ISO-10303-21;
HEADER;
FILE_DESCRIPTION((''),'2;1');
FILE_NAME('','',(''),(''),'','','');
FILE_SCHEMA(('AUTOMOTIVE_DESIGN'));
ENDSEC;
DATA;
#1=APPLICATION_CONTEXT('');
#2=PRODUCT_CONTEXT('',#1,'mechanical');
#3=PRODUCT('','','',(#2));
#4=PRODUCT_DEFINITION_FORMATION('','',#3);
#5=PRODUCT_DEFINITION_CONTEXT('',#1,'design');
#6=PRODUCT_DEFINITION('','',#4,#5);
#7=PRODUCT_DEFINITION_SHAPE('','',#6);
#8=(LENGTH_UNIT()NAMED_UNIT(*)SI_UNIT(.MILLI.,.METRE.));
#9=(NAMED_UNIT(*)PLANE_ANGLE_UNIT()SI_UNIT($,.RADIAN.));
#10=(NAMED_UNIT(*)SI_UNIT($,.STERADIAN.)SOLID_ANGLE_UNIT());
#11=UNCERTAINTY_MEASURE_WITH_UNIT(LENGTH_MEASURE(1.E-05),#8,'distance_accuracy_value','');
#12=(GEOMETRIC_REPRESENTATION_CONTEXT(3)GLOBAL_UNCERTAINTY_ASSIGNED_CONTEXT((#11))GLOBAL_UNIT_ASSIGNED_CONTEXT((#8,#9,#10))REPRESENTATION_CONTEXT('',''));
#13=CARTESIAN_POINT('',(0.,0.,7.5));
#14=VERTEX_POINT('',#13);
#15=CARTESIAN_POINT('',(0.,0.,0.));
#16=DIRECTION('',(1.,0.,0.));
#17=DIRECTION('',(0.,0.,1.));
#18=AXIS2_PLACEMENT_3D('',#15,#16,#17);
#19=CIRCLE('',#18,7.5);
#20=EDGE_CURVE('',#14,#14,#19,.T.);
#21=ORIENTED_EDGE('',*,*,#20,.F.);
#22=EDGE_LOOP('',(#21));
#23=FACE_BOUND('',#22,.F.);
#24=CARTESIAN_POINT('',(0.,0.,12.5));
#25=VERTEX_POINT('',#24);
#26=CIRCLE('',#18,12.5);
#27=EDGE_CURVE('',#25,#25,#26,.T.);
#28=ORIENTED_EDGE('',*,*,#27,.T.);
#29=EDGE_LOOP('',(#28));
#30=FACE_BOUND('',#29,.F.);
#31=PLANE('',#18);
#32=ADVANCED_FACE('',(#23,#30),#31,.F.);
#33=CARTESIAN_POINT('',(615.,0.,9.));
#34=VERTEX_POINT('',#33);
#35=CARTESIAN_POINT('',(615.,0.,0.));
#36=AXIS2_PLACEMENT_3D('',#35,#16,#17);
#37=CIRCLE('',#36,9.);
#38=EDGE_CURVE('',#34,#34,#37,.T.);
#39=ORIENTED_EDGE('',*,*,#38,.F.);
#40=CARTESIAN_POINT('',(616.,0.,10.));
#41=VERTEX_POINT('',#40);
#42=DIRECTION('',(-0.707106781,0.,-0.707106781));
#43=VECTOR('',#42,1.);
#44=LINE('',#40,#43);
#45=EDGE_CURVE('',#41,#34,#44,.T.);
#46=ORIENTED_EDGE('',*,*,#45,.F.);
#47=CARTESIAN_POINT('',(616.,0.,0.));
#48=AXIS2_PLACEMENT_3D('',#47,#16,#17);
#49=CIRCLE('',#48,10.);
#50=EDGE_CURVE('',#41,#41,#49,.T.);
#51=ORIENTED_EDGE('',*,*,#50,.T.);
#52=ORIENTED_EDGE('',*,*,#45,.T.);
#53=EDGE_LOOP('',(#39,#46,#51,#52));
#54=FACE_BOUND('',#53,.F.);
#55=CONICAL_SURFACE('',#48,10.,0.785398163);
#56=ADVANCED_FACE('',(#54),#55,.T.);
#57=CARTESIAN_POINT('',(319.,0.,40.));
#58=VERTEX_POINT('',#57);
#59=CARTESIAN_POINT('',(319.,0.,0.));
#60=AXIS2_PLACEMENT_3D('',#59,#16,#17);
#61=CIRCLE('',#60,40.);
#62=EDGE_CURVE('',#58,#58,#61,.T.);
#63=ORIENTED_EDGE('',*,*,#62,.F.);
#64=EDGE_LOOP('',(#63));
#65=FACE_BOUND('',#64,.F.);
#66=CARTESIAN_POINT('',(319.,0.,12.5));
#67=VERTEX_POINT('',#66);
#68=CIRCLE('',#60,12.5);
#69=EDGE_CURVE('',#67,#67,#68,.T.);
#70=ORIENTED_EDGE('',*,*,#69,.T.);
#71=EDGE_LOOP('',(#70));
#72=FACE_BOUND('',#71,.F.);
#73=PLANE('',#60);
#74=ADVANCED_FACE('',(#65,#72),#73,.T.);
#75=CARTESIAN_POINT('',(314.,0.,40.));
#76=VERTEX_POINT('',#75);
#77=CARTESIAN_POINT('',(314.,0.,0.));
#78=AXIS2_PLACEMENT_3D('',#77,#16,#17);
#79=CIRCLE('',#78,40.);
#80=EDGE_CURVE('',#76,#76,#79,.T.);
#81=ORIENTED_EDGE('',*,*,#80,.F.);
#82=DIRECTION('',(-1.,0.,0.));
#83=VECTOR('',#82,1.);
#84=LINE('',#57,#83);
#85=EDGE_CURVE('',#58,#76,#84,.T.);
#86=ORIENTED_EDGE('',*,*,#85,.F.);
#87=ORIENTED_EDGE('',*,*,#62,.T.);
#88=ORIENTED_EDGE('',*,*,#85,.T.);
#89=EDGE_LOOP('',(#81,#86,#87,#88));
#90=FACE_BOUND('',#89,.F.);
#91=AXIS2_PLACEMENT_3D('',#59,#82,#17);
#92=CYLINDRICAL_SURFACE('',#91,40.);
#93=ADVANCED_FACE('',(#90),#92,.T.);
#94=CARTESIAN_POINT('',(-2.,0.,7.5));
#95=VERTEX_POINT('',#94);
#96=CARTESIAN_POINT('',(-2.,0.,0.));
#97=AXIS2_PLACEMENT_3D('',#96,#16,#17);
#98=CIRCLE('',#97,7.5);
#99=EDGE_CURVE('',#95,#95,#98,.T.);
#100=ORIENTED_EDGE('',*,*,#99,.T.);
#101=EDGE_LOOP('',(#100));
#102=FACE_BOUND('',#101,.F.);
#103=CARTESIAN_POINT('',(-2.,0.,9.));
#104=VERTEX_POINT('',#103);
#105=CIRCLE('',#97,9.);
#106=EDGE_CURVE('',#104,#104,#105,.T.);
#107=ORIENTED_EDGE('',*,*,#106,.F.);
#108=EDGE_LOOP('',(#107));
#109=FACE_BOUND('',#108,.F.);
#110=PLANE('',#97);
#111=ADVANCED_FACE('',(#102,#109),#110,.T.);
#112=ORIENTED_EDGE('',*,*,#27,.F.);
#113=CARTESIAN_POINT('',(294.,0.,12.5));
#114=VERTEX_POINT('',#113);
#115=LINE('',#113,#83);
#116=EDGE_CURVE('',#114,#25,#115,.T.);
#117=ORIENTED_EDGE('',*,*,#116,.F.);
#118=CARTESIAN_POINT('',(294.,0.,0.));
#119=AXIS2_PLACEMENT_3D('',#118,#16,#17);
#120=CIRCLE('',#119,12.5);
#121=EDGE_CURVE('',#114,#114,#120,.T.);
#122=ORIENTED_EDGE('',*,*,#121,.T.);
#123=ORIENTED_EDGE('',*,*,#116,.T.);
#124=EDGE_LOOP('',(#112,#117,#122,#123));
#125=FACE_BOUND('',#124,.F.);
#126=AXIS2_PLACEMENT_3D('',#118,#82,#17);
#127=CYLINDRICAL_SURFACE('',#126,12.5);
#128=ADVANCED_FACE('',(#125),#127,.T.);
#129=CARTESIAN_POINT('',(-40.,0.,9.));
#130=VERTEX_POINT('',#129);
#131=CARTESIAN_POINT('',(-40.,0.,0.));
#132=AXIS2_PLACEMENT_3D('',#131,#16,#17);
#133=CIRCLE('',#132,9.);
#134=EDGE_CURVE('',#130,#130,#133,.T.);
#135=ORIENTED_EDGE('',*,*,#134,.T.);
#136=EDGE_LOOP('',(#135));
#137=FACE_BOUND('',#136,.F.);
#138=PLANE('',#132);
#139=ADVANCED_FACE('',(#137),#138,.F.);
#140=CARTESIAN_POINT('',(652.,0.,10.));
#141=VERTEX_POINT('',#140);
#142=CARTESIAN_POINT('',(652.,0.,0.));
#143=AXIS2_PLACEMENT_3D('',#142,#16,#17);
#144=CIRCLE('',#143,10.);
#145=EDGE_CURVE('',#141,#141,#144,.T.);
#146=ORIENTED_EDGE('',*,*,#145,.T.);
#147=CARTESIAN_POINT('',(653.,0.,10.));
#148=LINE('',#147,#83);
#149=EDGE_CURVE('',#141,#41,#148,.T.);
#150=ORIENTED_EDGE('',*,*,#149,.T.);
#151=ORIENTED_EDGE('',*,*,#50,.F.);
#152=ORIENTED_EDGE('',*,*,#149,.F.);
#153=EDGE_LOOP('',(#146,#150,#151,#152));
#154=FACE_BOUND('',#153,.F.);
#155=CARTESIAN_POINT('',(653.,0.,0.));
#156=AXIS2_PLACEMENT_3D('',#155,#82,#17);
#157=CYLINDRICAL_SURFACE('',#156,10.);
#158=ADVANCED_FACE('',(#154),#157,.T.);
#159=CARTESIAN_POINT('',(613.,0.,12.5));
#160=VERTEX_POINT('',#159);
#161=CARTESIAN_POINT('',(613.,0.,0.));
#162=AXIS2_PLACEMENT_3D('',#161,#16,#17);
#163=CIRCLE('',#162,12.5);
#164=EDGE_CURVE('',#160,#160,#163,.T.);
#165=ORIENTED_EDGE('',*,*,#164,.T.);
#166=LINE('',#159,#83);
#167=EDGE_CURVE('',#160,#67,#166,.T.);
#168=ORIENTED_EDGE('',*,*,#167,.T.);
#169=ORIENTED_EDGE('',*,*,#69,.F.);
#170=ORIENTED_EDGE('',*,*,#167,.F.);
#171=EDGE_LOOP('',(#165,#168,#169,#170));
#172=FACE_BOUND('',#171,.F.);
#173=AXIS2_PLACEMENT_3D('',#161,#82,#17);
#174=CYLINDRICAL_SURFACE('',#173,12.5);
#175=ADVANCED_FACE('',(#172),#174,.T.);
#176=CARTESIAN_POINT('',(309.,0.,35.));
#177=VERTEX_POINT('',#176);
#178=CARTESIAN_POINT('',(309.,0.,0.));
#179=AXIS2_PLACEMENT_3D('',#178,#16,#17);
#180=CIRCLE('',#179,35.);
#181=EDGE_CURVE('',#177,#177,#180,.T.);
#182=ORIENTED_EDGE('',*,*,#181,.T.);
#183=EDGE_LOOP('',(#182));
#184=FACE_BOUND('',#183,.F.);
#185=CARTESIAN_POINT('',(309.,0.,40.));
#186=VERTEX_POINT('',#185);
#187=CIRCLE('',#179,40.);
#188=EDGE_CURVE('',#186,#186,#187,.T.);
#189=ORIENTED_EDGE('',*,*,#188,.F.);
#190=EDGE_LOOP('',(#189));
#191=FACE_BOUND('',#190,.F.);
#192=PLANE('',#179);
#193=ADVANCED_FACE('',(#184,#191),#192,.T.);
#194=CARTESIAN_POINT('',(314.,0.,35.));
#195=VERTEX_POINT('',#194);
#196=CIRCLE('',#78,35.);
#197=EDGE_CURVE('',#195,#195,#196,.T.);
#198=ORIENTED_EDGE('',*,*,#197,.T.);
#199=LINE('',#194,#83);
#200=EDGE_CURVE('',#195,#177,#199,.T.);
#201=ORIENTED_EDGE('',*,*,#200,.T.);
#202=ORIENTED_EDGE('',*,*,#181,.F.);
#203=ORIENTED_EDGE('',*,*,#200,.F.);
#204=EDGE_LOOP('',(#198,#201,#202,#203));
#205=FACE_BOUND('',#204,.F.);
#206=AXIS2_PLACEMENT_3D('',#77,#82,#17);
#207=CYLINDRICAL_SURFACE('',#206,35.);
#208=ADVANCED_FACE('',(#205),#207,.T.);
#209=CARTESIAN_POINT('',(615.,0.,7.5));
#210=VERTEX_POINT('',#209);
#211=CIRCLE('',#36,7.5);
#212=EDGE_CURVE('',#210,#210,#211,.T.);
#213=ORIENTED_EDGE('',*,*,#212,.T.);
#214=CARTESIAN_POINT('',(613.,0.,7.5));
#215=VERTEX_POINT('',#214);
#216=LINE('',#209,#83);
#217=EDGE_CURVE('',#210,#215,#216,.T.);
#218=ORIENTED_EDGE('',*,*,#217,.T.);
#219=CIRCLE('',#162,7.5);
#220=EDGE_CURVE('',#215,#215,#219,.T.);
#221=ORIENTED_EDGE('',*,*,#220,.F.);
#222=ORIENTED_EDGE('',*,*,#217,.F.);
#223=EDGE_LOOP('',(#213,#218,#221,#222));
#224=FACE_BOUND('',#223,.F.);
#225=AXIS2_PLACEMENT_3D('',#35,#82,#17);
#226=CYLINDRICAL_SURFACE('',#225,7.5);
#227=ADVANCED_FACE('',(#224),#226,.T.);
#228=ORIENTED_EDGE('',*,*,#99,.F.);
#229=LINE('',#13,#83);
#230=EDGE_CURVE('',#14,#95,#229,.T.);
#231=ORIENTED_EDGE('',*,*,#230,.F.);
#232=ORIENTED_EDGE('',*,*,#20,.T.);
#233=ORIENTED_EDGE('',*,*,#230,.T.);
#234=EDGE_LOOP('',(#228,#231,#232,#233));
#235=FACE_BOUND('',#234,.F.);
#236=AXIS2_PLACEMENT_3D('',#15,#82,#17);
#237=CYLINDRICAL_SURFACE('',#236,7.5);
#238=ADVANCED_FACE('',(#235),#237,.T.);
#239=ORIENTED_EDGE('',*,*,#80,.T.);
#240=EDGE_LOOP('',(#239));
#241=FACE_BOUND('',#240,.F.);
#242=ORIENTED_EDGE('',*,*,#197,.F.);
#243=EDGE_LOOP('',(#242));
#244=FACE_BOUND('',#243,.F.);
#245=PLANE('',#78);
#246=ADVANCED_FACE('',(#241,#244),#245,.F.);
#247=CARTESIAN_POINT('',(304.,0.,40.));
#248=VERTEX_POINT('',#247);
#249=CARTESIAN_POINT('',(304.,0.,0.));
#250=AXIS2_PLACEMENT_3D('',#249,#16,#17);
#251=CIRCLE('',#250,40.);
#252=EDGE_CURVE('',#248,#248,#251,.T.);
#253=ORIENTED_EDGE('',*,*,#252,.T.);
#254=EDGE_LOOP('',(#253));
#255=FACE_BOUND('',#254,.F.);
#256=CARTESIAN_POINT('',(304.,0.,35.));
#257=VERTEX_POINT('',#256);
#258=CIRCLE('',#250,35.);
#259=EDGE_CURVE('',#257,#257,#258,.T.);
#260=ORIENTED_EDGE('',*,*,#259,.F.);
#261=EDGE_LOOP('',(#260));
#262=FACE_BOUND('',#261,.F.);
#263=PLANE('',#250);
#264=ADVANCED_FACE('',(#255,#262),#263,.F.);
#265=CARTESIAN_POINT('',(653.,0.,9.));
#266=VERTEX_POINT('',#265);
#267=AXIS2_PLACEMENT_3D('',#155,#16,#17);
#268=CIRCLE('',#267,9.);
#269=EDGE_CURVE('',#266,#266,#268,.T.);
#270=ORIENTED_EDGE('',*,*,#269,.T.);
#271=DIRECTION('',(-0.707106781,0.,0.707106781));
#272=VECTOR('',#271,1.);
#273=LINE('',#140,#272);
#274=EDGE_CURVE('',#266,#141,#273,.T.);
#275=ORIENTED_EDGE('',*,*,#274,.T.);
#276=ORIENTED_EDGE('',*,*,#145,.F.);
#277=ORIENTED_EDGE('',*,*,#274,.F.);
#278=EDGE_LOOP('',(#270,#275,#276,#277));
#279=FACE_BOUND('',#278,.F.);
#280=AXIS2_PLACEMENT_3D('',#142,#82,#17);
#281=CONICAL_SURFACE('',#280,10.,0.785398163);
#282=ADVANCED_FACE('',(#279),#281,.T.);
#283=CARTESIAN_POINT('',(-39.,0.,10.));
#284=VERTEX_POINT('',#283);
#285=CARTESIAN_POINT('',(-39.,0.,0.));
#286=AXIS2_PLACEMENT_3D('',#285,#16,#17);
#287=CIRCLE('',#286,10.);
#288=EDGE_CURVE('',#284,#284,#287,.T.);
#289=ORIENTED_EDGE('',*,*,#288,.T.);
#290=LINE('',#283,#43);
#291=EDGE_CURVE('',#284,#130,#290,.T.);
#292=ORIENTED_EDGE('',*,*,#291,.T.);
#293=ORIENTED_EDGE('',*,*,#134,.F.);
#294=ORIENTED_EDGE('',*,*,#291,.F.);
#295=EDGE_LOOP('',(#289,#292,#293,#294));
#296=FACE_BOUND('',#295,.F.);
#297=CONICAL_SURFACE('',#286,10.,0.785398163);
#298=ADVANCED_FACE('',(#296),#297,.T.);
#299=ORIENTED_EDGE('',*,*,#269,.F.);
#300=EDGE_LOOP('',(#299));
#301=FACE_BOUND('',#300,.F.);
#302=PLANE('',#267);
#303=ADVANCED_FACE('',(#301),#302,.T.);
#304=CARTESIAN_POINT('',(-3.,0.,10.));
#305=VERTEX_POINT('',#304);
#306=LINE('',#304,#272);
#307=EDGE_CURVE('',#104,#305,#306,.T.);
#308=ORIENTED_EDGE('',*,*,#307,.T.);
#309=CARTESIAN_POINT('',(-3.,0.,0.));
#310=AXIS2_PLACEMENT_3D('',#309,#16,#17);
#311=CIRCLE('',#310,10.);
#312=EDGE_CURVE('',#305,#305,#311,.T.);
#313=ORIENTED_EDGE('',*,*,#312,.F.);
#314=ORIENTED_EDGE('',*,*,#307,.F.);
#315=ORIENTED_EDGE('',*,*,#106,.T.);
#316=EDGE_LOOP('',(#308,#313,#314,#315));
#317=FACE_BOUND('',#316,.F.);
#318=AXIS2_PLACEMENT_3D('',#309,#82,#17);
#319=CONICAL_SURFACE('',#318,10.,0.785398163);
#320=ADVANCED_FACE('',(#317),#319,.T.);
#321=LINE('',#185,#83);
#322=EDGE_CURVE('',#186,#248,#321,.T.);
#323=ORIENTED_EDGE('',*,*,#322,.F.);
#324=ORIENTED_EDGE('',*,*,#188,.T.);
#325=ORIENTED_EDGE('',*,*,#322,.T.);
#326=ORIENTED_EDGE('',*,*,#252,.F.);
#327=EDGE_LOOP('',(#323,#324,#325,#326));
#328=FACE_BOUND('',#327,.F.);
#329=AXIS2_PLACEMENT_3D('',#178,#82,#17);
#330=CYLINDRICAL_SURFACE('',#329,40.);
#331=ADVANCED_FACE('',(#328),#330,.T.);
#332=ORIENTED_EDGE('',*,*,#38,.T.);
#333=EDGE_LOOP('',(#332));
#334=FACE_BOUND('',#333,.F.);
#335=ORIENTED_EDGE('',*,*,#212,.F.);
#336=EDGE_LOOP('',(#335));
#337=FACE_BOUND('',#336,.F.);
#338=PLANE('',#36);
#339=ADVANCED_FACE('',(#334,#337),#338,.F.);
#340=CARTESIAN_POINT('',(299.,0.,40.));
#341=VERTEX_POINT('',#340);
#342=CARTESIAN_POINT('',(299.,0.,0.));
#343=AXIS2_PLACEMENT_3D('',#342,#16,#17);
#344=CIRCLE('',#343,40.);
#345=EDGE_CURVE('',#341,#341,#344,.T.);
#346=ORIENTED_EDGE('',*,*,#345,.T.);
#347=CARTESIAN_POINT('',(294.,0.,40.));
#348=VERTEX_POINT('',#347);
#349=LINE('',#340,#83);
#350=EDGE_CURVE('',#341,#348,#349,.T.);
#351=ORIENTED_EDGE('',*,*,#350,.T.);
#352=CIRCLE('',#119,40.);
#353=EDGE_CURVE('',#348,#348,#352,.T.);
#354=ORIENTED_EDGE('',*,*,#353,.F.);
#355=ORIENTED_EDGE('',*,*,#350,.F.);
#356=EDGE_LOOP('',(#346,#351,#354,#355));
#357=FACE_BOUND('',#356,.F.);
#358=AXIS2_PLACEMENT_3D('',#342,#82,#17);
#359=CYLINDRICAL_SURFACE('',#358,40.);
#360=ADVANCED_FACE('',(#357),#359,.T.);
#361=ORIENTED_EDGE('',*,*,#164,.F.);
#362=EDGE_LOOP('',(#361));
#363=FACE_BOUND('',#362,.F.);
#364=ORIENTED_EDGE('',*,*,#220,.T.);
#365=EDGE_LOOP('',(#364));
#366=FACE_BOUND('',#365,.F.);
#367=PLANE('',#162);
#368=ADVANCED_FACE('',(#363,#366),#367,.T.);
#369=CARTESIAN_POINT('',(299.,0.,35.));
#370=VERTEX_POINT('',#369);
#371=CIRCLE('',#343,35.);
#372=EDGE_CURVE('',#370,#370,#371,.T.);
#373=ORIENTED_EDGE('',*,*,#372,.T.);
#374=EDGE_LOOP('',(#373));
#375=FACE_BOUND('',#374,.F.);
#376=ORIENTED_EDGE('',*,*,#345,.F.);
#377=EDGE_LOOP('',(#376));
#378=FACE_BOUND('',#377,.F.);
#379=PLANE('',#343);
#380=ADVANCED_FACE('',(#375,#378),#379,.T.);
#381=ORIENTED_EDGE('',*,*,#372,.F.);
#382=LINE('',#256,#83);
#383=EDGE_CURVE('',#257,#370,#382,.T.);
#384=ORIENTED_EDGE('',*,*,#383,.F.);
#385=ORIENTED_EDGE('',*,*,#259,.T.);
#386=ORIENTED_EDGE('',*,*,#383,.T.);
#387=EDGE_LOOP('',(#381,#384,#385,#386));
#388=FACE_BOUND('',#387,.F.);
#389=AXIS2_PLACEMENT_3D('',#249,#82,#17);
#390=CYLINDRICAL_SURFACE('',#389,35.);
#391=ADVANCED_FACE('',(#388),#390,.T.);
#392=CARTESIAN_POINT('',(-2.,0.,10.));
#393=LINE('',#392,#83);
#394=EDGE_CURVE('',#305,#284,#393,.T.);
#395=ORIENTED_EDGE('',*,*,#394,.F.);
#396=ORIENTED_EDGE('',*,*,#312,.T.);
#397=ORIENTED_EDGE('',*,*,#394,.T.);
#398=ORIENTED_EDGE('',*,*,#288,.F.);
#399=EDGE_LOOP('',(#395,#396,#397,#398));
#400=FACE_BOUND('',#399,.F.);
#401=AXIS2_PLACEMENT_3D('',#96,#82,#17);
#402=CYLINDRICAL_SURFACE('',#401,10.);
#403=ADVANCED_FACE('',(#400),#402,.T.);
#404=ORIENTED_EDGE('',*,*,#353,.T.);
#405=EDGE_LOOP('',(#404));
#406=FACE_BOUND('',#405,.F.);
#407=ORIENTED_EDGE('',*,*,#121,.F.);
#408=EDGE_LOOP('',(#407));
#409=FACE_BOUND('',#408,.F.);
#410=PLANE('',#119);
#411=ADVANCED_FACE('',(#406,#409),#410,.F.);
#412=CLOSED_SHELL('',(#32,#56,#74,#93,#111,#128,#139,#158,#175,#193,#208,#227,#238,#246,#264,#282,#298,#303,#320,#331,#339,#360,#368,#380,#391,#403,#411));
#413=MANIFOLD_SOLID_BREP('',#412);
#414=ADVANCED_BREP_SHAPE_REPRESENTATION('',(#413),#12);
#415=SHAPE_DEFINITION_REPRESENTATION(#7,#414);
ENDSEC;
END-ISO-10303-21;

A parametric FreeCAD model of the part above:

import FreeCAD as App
import Part
import Sketcher
Q = App.Units.Quantity


def edges_at(feature, points):
    """Names of the edges that pass closest to the given points."""
    edges = feature.Shape.Edges
    near = lambda p: min(range(len(edges)), key=lambda i: edges[i].distToShape(Part.Vertex(*p))[0])
    return sorted({f"Edge{near(p) + 1}" for p in points})

doc = App.newDocument("Part")
body = doc.addObject("PartDesign::Body", "Body")

sketch1 = body.newObject("Sketcher::SketchObject", "Sketch")
sketch1.AttachmentSupport = (doc.getObject("XZ_Plane"), [""])
sketch1.MapMode = "FlatFace"
sketch1.addGeometry(Part.LineSegment(App.Vector(294, 12.5, 0), App.Vector(0, 12.5, 0)), False)
sketch1.addGeometry(Part.LineSegment(App.Vector(0, 12.5, 0), App.Vector(0, 7.5, 0)), False)
sketch1.addGeometry(Part.LineSegment(App.Vector(0, 7.5, 0), App.Vector(-2, 7.5, 0)), False)
sketch1.addGeometry(Part.LineSegment(App.Vector(-2, 7.5, 0), App.Vector(-2, 10, 0)), False)
sketch1.addGeometry(Part.LineSegment(App.Vector(-2, 10, 0), App.Vector(-40, 10, 0)), False)
sketch1.addGeometry(Part.LineSegment(App.Vector(-40, 10, 0), App.Vector(-40, 0, 0)), False)
sketch1.addGeometry(Part.LineSegment(App.Vector(-40, 0, 0), App.Vector(653, 0, 0)), False)
sketch1.addGeometry(Part.LineSegment(App.Vector(653, 0, 0), App.Vector(653, 10, 0)), False)
sketch1.addGeometry(Part.LineSegment(App.Vector(653, 10, 0), App.Vector(615, 10, 0)), False)
sketch1.addGeometry(Part.LineSegment(App.Vector(615, 10, 0), App.Vector(615, 7.5, 0)), False)
sketch1.addGeometry(Part.LineSegment(App.Vector(615, 7.5, 0), App.Vector(613, 7.5, 0)), False)
sketch1.addGeometry(Part.LineSegment(App.Vector(613, 7.5, 0), App.Vector(613, 12.5, 0)), False)
sketch1.addGeometry(Part.LineSegment(App.Vector(613, 12.5, 0), App.Vector(319, 12.5, 0)), False)
sketch1.addGeometry(Part.LineSegment(App.Vector(319, 12.5, 0), App.Vector(319, 40, 0)), False)
sketch1.addGeometry(Part.LineSegment(App.Vector(319, 40, 0), App.Vector(314, 40, 0)), False)
sketch1.addGeometry(Part.LineSegment(App.Vector(314, 40, 0), App.Vector(314, 35, 0)), False)
sketch1.addGeometry(Part.LineSegment(App.Vector(314, 35, 0), App.Vector(309, 35, 0)), False)
sketch1.addGeometry(Part.LineSegment(App.Vector(309, 35, 0), App.Vector(309, 40, 0)), False)
sketch1.addGeometry(Part.LineSegment(App.Vector(309, 40, 0), App.Vector(304, 40, 0)), False)
sketch1.addGeometry(Part.LineSegment(App.Vector(304, 40, 0), App.Vector(304, 35, 0)), False)
sketch1.addGeometry(Part.LineSegment(App.Vector(304, 35, 0), App.Vector(299, 35, 0)), False)
sketch1.addGeometry(Part.LineSegment(App.Vector(299, 35, 0), App.Vector(299, 40, 0)), False)
sketch1.addGeometry(Part.LineSegment(App.Vector(299, 40, 0), App.Vector(294, 40, 0)), False)
sketch1.addGeometry(Part.LineSegment(App.Vector(294, 40, 0), App.Vector(294, 12.5, 0)), False)
sketch1.addConstraint(Sketcher.Constraint("Coincident", 0, 2, 1, 1))
sketch1.addConstraint(Sketcher.Constraint("Coincident", 1, 2, 2, 1))
sketch1.addConstraint(Sketcher.Constraint("Coincident", 2, 2, 3, 1))
sketch1.addConstraint(Sketcher.Constraint("Coincident", 3, 2, 4, 1))
sketch1.addConstraint(Sketcher.Constraint("Coincident", 4, 2, 5, 1))
sketch1.addConstraint(Sketcher.Constraint("Coincident", 5, 2, 6, 1))
sketch1.addConstraint(Sketcher.Constraint("Coincident", 6, 2, 7, 1))
sketch1.addConstraint(Sketcher.Constraint("Coincident", 7, 2, 8, 1))
sketch1.addConstraint(Sketcher.Constraint("Coincident", 8, 2, 9, 1))
sketch1.addConstraint(Sketcher.Constraint("Coincident", 9, 2, 10, 1))
sketch1.addConstraint(Sketcher.Constraint("Coincident", 10, 2, 11, 1))
sketch1.addConstraint(Sketcher.Constraint("Coincident", 11, 2, 12, 1))
sketch1.addConstraint(Sketcher.Constraint("Coincident", 12, 2, 13, 1))
sketch1.addConstraint(Sketcher.Constraint("Coincident", 13, 2, 14, 1))
sketch1.addConstraint(Sketcher.Constraint("Coincident", 14, 2, 15, 1))
sketch1.addConstraint(Sketcher.Constraint("Coincident", 15, 2, 16, 1))
sketch1.addConstraint(Sketcher.Constraint("Coincident", 16, 2, 17, 1))
sketch1.addConstraint(Sketcher.Constraint("Coincident", 17, 2, 18, 1))
sketch1.addConstraint(Sketcher.Constraint("Coincident", 18, 2, 19, 1))
sketch1.addConstraint(Sketcher.Constraint("Coincident", 19, 2, 20, 1))
sketch1.addConstraint(Sketcher.Constraint("Coincident", 20, 2, 21, 1))
sketch1.addConstraint(Sketcher.Constraint("Coincident", 21, 2, 22, 1))
sketch1.addConstraint(Sketcher.Constraint("Coincident", 22, 2, 23, 1))
sketch1.addConstraint(Sketcher.Constraint("Coincident", 23, 2, 0, 1))
sketch1.addConstraint(Sketcher.Constraint("Horizontal", 0))
sketch1.addConstraint(Sketcher.Constraint("Vertical", 1))
sketch1.addConstraint(Sketcher.Constraint("Horizontal", 2))
sketch1.addConstraint(Sketcher.Constraint("Vertical", 3))
sketch1.addConstraint(Sketcher.Constraint("Horizontal", 4))
sketch1.addConstraint(Sketcher.Constraint("Vertical", 5))
sketch1.addConstraint(Sketcher.Constraint("Horizontal", 6))
sketch1.addConstraint(Sketcher.Constraint("Vertical", 7))
sketch1.addConstraint(Sketcher.Constraint("Horizontal", 8))
sketch1.addConstraint(Sketcher.Constraint("Vertical", 9))
sketch1.addConstraint(Sketcher.Constraint("Horizontal", 10))
sketch1.addConstraint(Sketcher.Constraint("Vertical", 11))
sketch1.addConstraint(Sketcher.Constraint("Horizontal", 12))
sketch1.addConstraint(Sketcher.Constraint("Vertical", 13))
sketch1.addConstraint(Sketcher.Constraint("Horizontal", 14))
sketch1.addConstraint(Sketcher.Constraint("Vertical", 15))
sketch1.addConstraint(Sketcher.Constraint("Horizontal", 16))
sketch1.addConstraint(Sketcher.Constraint("Vertical", 17))
sketch1.addConstraint(Sketcher.Constraint("Horizontal", 18))
sketch1.addConstraint(Sketcher.Constraint("Vertical", 19))
sketch1.addConstraint(Sketcher.Constraint("Horizontal", 20))
sketch1.addConstraint(Sketcher.Constraint("Vertical", 21))
sketch1.addConstraint(Sketcher.Constraint("Horizontal", 22))
sketch1.addConstraint(Sketcher.Constraint("Vertical", 23))
sketch1.addConstraint(Sketcher.Constraint("PointOnObject", 0, 2, -2))
sketch1.addConstraint(Sketcher.Constraint("PointOnObject", 5, 2, -1))
sketch1.addConstraint(Sketcher.Constraint("Horizontal", 4, 2, 7, 2))
sketch1.addConstraint(Sketcher.Constraint("Horizontal", 2, 2, 9, 2))
sketch1.addConstraint(Sketcher.Constraint("Horizontal", 0, 2, 11, 2))
sketch1.addConstraint(Sketcher.Constraint("Horizontal", 14, 2, 17, 2))
sketch1.addConstraint(Sketcher.Constraint("Horizontal", 16, 2, 19, 2))
sketch1.addConstraint(Sketcher.Constraint("Horizontal", 18, 2, 21, 2))
sketch1.addConstraint(Sketcher.Constraint("Equal", 4, 8))
sketch1.addConstraint(Sketcher.Constraint("Equal", 2, 10))
sketch1.addConstraint(Sketcher.Constraint("Equal", 0, 12))
sketch1.addConstraint(Sketcher.Constraint("Equal", 14, 16))
sketch1.addConstraint(Sketcher.Constraint("Equal", 16, 18))
sketch1.addConstraint(Sketcher.Constraint("Equal", 18, 20))
sketch1.addConstraint(Sketcher.Constraint("Equal", 20, 22))
sketch1.addConstraint(Sketcher.Constraint("Equal", 22, 1))
sketch1.addConstraint(Sketcher.Constraint("Equal", 11, 15))
sketch1.addConstraint(Sketcher.Constraint("DistanceX", 0, 2, 0, 1, Q("294 mm")))
sketch1.addConstraint(Sketcher.Constraint("DistanceX", 2, 2, 2, 1, Q("2 mm")))
sketch1.addConstraint(Sketcher.Constraint("DistanceX", 4, 2, 4, 1, Q("38 mm")))
sketch1.addConstraint(Sketcher.Constraint("DistanceX", 6, 1, 6, 2, Q("693 mm")))
sketch1.addConstraint(Sketcher.Constraint("DistanceY", 5, 2, 5, 1, Q("10 mm")))
sketch1.addConstraint(Sketcher.Constraint("DistanceY", 3, 1, 3, 2, Q("2.5 mm")))
sketch1.addConstraint(Sketcher.Constraint("DistanceY", 13, 1, 13, 2, Q("27.5 mm")))
revolution = body.newObject("PartDesign::Revolution", "Revolution")
revolution.Profile = sketch1
revolution.ReferenceAxis = (sketch1, ["H_Axis"])
revolution.Angle = 360
doc.recompute()

chamfer = body.newObject("PartDesign::Chamfer", "Chamfer")
chamfer.Base = (revolution, edges_at(revolution, [
    (653, 0, -10),
    (615, 0, -10),
    (-40, 0, -10),
    (-2, 0, -10),
]))
chamfer.Size = 1

doc.recompute()
